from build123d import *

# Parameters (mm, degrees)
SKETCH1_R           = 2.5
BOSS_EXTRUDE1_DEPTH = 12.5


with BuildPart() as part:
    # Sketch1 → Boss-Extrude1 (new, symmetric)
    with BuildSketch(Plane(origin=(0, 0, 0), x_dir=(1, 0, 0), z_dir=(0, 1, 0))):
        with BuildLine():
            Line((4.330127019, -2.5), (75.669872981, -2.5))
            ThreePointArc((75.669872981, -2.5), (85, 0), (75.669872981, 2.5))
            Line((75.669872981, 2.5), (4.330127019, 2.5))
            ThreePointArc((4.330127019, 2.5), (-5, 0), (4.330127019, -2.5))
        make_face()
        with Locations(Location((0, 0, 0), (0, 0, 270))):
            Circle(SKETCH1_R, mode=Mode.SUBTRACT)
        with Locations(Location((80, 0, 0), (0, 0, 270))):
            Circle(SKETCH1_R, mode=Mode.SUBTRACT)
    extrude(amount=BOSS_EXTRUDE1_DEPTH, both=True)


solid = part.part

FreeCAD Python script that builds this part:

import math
import FreeCAD as App
import Part
import Sketcher

doc = App.newDocument("Part")
body = doc.addObject("PartDesign::Body", "Body")

# Sketch on XZ plane
sketch1 = body.newObject("Sketcher::SketchObject", "Sketch")
sketch1.AttachmentSupport = (doc.getObject("XZ_Plane"), [""])
sketch1.MapMode = "FlatFace"
sketch1.addGeometry([
    Part.LineSegment(App.Vector(4.3, 2.5, 0), App.Vector(75.7, 2.5, 0)),  # 0
    Part.ArcOfCircle(Part.Circle(App.Vector(80, 0, 0), App.Vector(0, 0, 1), 5), math.radians(-150), math.radians(150)),  # 1
    Part.LineSegment(App.Vector(75.7, -2.5, 0), App.Vector(4.3, -2.5, 0)),  # 2
    Part.ArcOfCircle(Part.Circle(App.Vector(0, 0, 0), App.Vector(0, 0, 1), 5), math.radians(30), math.radians(330)),  # 3
    Part.Circle(App.Vector(0, 0, 0), App.Vector(0, 0, 1), 2.5),  # 4
    Part.Circle(App.Vector(80, 0, 0), App.Vector(0, 0, 1), 2.5),  # 5
], False)
sketch1.addConstraint([
    Sketcher.Constraint("Coincident", 0, 2, 1, 2),
    Sketcher.Constraint("Coincident", 1, 1, 2, 1),
    Sketcher.Constraint("Coincident", 2, 2, 3, 2),
    Sketcher.Constraint("Coincident", 3, 1, 0, 1),
    Sketcher.Constraint("Horizontal", 0),
    Sketcher.Constraint("Horizontal", 2),
    Sketcher.Constraint("Coincident", 3, 3, -1, 1),
    Sketcher.Constraint("Coincident", 4, 3, -1, 1),
    Sketcher.Constraint("Coincident", 5, 3, 1, 3),
    Sketcher.Constraint("Equal", 1, 3),
    Sketcher.Constraint("Equal", 4, 5),
    Sketcher.Constraint("Symmetric", 0, 2, 1, 1, -1),
    Sketcher.Constraint("Diameter", 4, 5.0),
    Sketcher.Constraint("Radius", 1, 5.0),
    Sketcher.Constraint("DistanceX", -1, 1, 1, 3, 80.0),
    Sketcher.Constraint("DistanceY", 1, 1, 0, 2, 5.0),
])
pad1 = body.newObject("PartDesign::Pad", "Pad")
pad1.Profile = sketch1
pad1.Length = 25
pad1.Midplane = True

doc.recompute()
